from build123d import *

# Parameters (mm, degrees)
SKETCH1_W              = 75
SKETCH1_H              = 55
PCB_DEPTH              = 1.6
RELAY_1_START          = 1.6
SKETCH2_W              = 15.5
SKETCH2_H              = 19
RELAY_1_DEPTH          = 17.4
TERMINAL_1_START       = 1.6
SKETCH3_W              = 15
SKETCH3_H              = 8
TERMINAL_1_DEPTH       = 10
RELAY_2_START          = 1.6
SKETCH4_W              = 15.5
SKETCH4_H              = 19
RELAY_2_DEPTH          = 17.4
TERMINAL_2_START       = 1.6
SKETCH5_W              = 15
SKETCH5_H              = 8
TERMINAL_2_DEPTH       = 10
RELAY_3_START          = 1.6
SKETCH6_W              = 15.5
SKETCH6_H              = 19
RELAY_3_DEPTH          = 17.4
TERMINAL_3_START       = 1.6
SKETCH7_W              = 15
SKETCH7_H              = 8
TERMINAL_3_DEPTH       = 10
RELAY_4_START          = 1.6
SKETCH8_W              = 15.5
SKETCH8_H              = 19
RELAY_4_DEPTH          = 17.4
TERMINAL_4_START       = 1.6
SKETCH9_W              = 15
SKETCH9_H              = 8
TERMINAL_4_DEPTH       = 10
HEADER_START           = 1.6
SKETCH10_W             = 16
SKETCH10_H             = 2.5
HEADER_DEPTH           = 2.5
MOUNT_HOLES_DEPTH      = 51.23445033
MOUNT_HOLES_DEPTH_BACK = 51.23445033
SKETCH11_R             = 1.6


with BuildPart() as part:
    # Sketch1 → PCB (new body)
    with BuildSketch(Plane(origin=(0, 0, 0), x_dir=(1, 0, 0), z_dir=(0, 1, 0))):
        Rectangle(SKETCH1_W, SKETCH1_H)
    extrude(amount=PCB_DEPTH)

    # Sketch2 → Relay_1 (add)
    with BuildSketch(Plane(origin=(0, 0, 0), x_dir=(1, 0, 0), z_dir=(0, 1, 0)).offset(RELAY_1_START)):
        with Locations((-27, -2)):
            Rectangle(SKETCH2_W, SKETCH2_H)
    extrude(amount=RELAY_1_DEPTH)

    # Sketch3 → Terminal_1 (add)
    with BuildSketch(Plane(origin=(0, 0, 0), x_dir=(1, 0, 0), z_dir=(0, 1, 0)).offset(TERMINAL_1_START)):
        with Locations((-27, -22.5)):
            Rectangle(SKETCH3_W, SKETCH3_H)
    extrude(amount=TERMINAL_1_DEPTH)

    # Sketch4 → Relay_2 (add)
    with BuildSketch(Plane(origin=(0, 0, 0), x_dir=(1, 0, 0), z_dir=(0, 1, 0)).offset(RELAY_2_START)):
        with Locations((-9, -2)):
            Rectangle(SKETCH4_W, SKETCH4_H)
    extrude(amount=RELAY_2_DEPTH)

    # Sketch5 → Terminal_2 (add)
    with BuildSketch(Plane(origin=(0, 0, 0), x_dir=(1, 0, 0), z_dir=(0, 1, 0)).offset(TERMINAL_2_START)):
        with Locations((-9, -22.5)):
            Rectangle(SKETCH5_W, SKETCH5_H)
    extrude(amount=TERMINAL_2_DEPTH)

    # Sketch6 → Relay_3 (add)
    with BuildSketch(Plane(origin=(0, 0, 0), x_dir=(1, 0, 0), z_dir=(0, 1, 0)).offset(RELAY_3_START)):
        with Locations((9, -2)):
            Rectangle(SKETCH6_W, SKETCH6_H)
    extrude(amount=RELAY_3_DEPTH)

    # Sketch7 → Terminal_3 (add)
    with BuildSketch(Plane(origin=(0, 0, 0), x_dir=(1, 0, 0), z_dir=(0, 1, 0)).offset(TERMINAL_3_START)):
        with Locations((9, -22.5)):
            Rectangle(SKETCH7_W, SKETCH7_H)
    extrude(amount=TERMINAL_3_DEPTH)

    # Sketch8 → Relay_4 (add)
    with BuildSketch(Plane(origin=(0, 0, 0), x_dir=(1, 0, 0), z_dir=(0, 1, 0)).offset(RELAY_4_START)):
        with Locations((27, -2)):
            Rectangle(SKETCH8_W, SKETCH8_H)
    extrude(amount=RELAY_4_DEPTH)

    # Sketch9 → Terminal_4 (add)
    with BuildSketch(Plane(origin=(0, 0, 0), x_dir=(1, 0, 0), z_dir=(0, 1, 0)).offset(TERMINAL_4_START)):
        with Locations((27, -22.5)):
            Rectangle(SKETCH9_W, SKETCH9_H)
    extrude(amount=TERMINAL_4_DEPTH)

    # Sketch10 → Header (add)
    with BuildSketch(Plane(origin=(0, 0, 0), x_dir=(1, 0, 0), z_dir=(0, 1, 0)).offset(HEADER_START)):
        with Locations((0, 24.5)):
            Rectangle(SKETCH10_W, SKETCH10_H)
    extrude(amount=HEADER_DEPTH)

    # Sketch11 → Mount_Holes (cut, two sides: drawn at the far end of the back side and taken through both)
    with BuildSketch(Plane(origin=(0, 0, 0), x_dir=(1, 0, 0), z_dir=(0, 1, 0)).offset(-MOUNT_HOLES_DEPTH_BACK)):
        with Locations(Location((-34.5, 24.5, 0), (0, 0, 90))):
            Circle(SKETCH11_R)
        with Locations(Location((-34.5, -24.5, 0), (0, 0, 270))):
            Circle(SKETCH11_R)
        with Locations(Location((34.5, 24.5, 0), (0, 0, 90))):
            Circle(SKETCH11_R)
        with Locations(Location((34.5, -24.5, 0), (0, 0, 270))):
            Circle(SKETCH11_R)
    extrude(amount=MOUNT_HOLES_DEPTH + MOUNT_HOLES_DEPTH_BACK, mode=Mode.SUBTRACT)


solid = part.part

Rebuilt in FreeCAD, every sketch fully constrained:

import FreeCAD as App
import Part
import Sketcher
from FreeCAD import Vector
Q = App.Units.Quantity

doc = App.newDocument("Part")
params = doc.addObject("Spreadsheet::Sheet", "Params")
for row, (alias, value) in enumerate([
    ("sketch1_width", "75 mm"),
    ("sketch1_height", "55 mm"),
    ("pad1_length", "1.6 mm"),
    ("sketch2_height", "19 mm"),
    ("sketch2_width", "15.5 mm"),
    ("pad2_length", "17.4 mm"),
    ("sketch3_width", "15 mm"),
    ("sketch3_height", "8 mm"),
    ("pad3_length", "10 mm"),
    ("sketch4_height", "19 mm"),
    ("sketch4_width", "15.5 mm"),
    ("pad4_length", "17.4 mm"),
    ("sketch5_width", "15 mm"),
    ("sketch5_height", "8 mm"),
    ("pad5_length", "10 mm"),
    ("sketch6_height", "19 mm"),
    ("sketch6_width", "15.5 mm"),
    ("pad6_length", "17.4 mm"),
    ("sketch7_width", "15 mm"),
    ("sketch7_height", "8 mm"),
    ("pad7_length", "10 mm"),
    ("sketch8_height", "19 mm"),
    ("sketch8_width", "15.5 mm"),
    ("pad8_length", "17.4 mm"),
    ("sketch9_width", "15 mm"),
    ("sketch9_height", "8 mm"),
    ("pad9_length", "10 mm"),
    ("sketch10_width", "16 mm"),
    ("sketch10_height", "2.5 mm"),
    ("pad10_length", "2.5 mm"),
    ("sketch11_diameter", "3.2 mm"),
], start=1):
    params.set(f"A{row}", alias)
    params.set(f"B{row}", "=" + value)
    params.setAlias(f"B{row}", alias)

body = doc.addObject("PartDesign::Body", "Body")

# Sketch on XZ plane
sketch1 = body.newObject("Sketcher::SketchObject", "Sketch")
sketch1.AttachmentSupport = (doc.getObject("XZ_Plane"), [""])
sketch1.MapMode = "FlatFace"
sketch1.addGeometry([
    Part.LineSegment(Vector(-38, -28, 0), Vector(-38, 28, 0)),
    Part.LineSegment(Vector(-38, 28, 0), Vector(38, 28, 0)),
    Part.LineSegment(Vector(38, 28, 0), Vector(38, -28, 0)),
    Part.LineSegment(Vector(38, -28, 0), Vector(-38, -28, 0)),
], False)
sketch1.addConstraint([
    Sketcher.Constraint("Coincident", 0, 2, 1, 1),
    Sketcher.Constraint("Coincident", 1, 2, 2, 1),
    Sketcher.Constraint("Coincident", 2, 2, 3, 1),
    Sketcher.Constraint("Coincident", 3, 2, 0, 1),
    Sketcher.Constraint("Vertical", 0),
    Sketcher.Constraint("Horizontal", 1),
    Sketcher.Constraint("Vertical", 2),
    Sketcher.Constraint("Horizontal", 3),
    Sketcher.Constraint("Symmetric", 0, 2, 2, 2, -1, 1),
    Sketcher.Constraint("DistanceX", 1, 1, 1, 2, Q("75 mm")),
    Sketcher.Constraint("DistanceY", 0, 1, 0, 2, Q("55 mm")),
])
sketch1.setExpression("Constraints[9]", "Params.sketch1_width")
sketch1.setExpression("Constraints[10]", "Params.sketch1_height")
pad1 = body.newObject("PartDesign::Pad", "Pad")
pad1.Profile = sketch1
pad1.setExpression("Length", "Params.pad1_length")
pad1.Reversed = True

# Sketch on XZ plane
sketch2 = body.newObject("Sketcher::SketchObject", "Sketch001")
sketch2.AttachmentSupport = (doc.getObject("XZ_Plane"), [""])
sketch2.MapMode = "FlatFace"
sketch2.AttachmentOffset = App.Placement(Vector(0, 0, -1.6), App.Rotation())
sketch2.addGeometry([
    Part.LineSegment(Vector(-35, -8, 0), Vector(-35, 12, 0)),
    Part.LineSegment(Vector(-35, 12, 0), Vector(-19, 12, 0)),
    Part.LineSegment(Vector(-19, 12, 0), Vector(-19, -8, 0)),
    Part.LineSegment(Vector(-19, -8, 0), Vector(-35, -8, 0)),
], False)
sketch2.addConstraint([
    Sketcher.Constraint("Coincident", 0, 2, 1, 1),
    Sketcher.Constraint("Coincident", 1, 2, 2, 1),
    Sketcher.Constraint("Coincident", 2, 2, 3, 1),
    Sketcher.Constraint("Coincident", 3, 2, 0, 1),
    Sketcher.Constraint("Vertical", 0),
    Sketcher.Constraint("Horizontal", 1),
    Sketcher.Constraint("Vertical", 2),
    Sketcher.Constraint("Horizontal", 3),
    Sketcher.Constraint("DistanceY", 0, 1, 0, 2, Q("19 mm")),
    Sketcher.Constraint("DistanceX", 1, 1, 1, 2, Q("15.5 mm")),
    Sketcher.Constraint("DistanceY", -1, 1, 0, 2, Q("11.5 mm")),
    Sketcher.Constraint("DistanceX", 0, 2, -1, 1, Q("34.75 mm")),
])
sketch2.setExpression("Constraints[8]", "Params.sketch2_height")
sketch2.setExpression("Constraints[9]", "Params.sketch2_width")
pad2 = body.newObject("PartDesign::Pad", "Pad001")
pad2.Profile = sketch2
pad2.setExpression("Length", "Params.pad2_length")
pad2.Reversed = True

# Sketch on XZ plane
sketch3 = body.newObject("Sketcher::SketchObject", "Sketch002")
sketch3.AttachmentSupport = (doc.getObject("XZ_Plane"), [""])
sketch3.MapMode = "FlatFace"
sketch3.AttachmentOffset = App.Placement(Vector(0, 0, -1.6), App.Rotation())
sketch3.addGeometry([
    Part.LineSegment(Vector(-34, 18, 0), Vector(-34, 26, 0)),
    Part.LineSegment(Vector(-34, 26, 0), Vector(-20, 26, 0)),
    Part.LineSegment(Vector(-20, 26, 0), Vector(-20, 18, 0)),
    Part.LineSegment(Vector(-20, 18, 0), Vector(-34, 18, 0)),
], False)
sketch3.addConstraint([
    Sketcher.Constraint("Coincident", 0, 2, 1, 1),
    Sketcher.Constraint("Coincident", 1, 2, 2, 1),
    Sketcher.Constraint("Coincident", 2, 2, 3, 1),
    Sketcher.Constraint("Coincident", 3, 2, 0, 1),
    Sketcher.Constraint("Vertical", 0),
    Sketcher.Constraint("Horizontal", 1),
    Sketcher.Constraint("Vertical", 2),
    Sketcher.Constraint("Horizontal", 3),
    Sketcher.Constraint("DistanceX", 1, 1, 1, 2, Q("15 mm")),
    Sketcher.Constraint("DistanceY", 0, 1, 0, 2, Q("8 mm")),
    Sketcher.Constraint("DistanceX", 0, 2, -1, 1, Q("34.5 mm")),
    Sketcher.Constraint("DistanceY", -1, 1, 0, 2, Q("26.5 mm")),
])
sketch3.setExpression("Constraints[8]", "Params.sketch3_width")
sketch3.setExpression("Constraints[9]", "Params.sketch3_height")
pad3 = body.newObject("PartDesign::Pad", "Pad002")
pad3.Profile = sketch3
pad3.setExpression("Length", "Params.pad3_length")
pad3.Reversed = True

# Sketch on XZ plane
sketch4 = body.newObject("Sketcher::SketchObject", "Sketch003")
sketch4.AttachmentSupport = (doc.getObject("XZ_Plane"), [""])
sketch4.MapMode = "FlatFace"
sketch4.AttachmentOffset = App.Placement(Vector(0, 0, -1.6), App.Rotation())
sketch4.addGeometry([
    Part.LineSegment(Vector(-17, -8, 0), Vector(-17, 12, 0)),
    Part.LineSegment(Vector(-17, 12, 0), Vector(-1, 12, 0)),
    Part.LineSegment(Vector(-1, 12, 0), Vector(-1, -8, 0)),
    Part.LineSegment(Vector(-1, -8, 0), Vector(-17, -8, 0)),
], False)
sketch4.addConstraint([
    Sketcher.Constraint("Coincident", 0, 2, 1, 1),
    Sketcher.Constraint("Coincident", 1, 2, 2, 1),
    Sketcher.Constraint("Coincident", 2, 2, 3, 1),
    Sketcher.Constraint("Coincident", 3, 2, 0, 1),
    Sketcher.Constraint("Vertical", 0),
    Sketcher.Constraint("Horizontal", 1),
    Sketcher.Constraint("Vertical", 2),
    Sketcher.Constraint("Horizontal", 3),
    Sketcher.Constraint("DistanceY", 0, 1, 0, 2, Q("19 mm")),
    Sketcher.Constraint("DistanceX", 1, 1, 1, 2, Q("15.5 mm")),
    Sketcher.Constraint("DistanceY", -1, 1, 0, 2, Q("11.5 mm")),
    Sketcher.Constraint("DistanceX", 0, 2, -1, 1, Q("16.75 mm")),
])
sketch4.setExpression("Constraints[8]", "Params.sketch4_height")
sketch4.setExpression("Constraints[9]", "Params.sketch4_width")
pad4 = body.newObject("PartDesign::Pad", "Pad003")
pad4.Profile = sketch4
pad4.setExpression("Length", "Params.pad4_length")
pad4.Reversed = True

# Sketch on XZ plane
sketch5 = body.newObject("Sketcher::SketchObject", "Sketch004")
sketch5.AttachmentSupport = (doc.getObject("XZ_Plane"), [""])
sketch5.MapMode = "FlatFace"
sketch5.AttachmentOffset = App.Placement(Vector(0, 0, -1.6), App.Rotation())
sketch5.addGeometry([
    Part.LineSegment(Vector(-16, 18, 0), Vector(-16, 26, 0)),
    Part.LineSegment(Vector(-16, 26, 0), Vector(-2, 26, 0)),
    Part.LineSegment(Vector(-2, 26, 0), Vector(-2, 18, 0)),
    Part.LineSegment(Vector(-2, 18, 0), Vector(-16, 18, 0)),
], False)
sketch5.addConstraint([
    Sketcher.Constraint("Coincident", 0, 2, 1, 1),
    Sketcher.Constraint("Coincident", 1, 2, 2, 1),
    Sketcher.Constraint("Coincident", 2, 2, 3, 1),
    Sketcher.Constraint("Coincident", 3, 2, 0, 1),
    Sketcher.Constraint("Vertical", 0),
    Sketcher.Constraint("Horizontal", 1),
    Sketcher.Constraint("Vertical", 2),
    Sketcher.Constraint("Horizontal", 3),
    Sketcher.Constraint("DistanceX", 1, 1, 1, 2, Q("15 mm")),
    Sketcher.Constraint("DistanceY", 0, 1, 0, 2, Q("8 mm")),
    Sketcher.Constraint("DistanceX", 0, 2, -1, 1, Q("16.5 mm")),
    Sketcher.Constraint("DistanceY", -1, 1, 0, 2, Q("26.5 mm")),
])
sketch5.setExpression("Constraints[8]", "Params.sketch5_width")
sketch5.setExpression("Constraints[9]", "Params.sketch5_height")
pad5 = body.newObject("PartDesign::Pad", "Pad004")
pad5.Profile = sketch5
pad5.setExpression("Length", "Params.pad5_length")
pad5.Reversed = True

# Sketch on XZ plane
sketch6 = body.newObject("Sketcher::SketchObject", "Sketch005")
sketch6.AttachmentSupport = (doc.getObject("XZ_Plane"), [""])
sketch6.MapMode = "FlatFace"
sketch6.AttachmentOffset = App.Placement(Vector(0, 0, -1.6), App.Rotation())
sketch6.addGeometry([
    Part.LineSegment(Vector(1, -8, 0), Vector(1, 12, 0)),
    Part.LineSegment(Vector(1, 12, 0), Vector(17, 12, 0)),
    Part.LineSegment(Vector(17, 12, 0), Vector(17, -8, 0)),
    Part.LineSegment(Vector(17, -8, 0), Vector(1, -8, 0)),
], False)
sketch6.addConstraint([
    Sketcher.Constraint("Coincident", 0, 2, 1, 1),
    Sketcher.Constraint("Coincident", 1, 2, 2, 1),
    Sketcher.Constraint("Coincident", 2, 2, 3, 1),
    Sketcher.Constraint("Coincident", 3, 2, 0, 1),
    Sketcher.Constraint("Vertical", 0),
    Sketcher.Constraint("Horizontal", 1),
    Sketcher.Constraint("Vertical", 2),
    Sketcher.Constraint("Horizontal", 3),
    Sketcher.Constraint("DistanceY", 0, 1, 0, 2, Q("19 mm")),
    Sketcher.Constraint("DistanceX", 1, 1, 1, 2, Q("15.5 mm")),
    Sketcher.Constraint("DistanceY", -1, 1, 0, 2, Q("11.5 mm")),
    Sketcher.Constraint("DistanceX", -1, 1, 0, 2, Q("1.25 mm")),
])
sketch6.setExpression("Constraints[8]", "Params.sketch6_height")
sketch6.setExpression("Constraints[9]", "Params.sketch6_width")
pad6 = body.newObject("PartDesign::Pad", "Pad005")
pad6.Profile = sketch6
pad6.setExpression("Length", "Params.pad6_length")
pad6.Reversed = True

# Sketch on XZ plane
sketch7 = body.newObject("Sketcher::SketchObject", "Sketch006")
sketch7.AttachmentSupport = (doc.getObject("XZ_Plane"), [""])
sketch7.MapMode = "FlatFace"
sketch7.AttachmentOffset = App.Placement(Vector(0, 0, -1.6), App.Rotation())
sketch7.addGeometry([
    Part.LineSegment(Vector(2, 18, 0), Vector(2, 26, 0)),
    Part.LineSegment(Vector(2, 26, 0), Vector(16, 26, 0)),
    Part.LineSegment(Vector(16, 26, 0), Vector(16, 18, 0)),
    Part.LineSegment(Vector(16, 18, 0), Vector(2, 18, 0)),
], False)
sketch7.addConstraint([
    Sketcher.Constraint("Coincident", 0, 2, 1, 1),
    Sketcher.Constraint("Coincident", 1, 2, 2, 1),
    Sketcher.Constraint("Coincident", 2, 2, 3, 1),
    Sketcher.Constraint("Coincident", 3, 2, 0, 1),
    Sketcher.Constraint("Vertical", 0),
    Sketcher.Constraint("Horizontal", 1),
    Sketcher.Constraint("Vertical", 2),
    Sketcher.Constraint("Horizontal", 3),
    Sketcher.Constraint("DistanceX", 1, 1, 1, 2, Q("15 mm")),
    Sketcher.Constraint("DistanceY", 0, 1, 0, 2, Q("8 mm")),
    Sketcher.Constraint("DistanceX", -1, 1, 0, 2, Q("1.5 mm")),
    Sketcher.Constraint("DistanceY", -1, 1, 0, 2, Q("26.5 mm")),
])
sketch7.setExpression("Constraints[8]", "Params.sketch7_width")
sketch7.setExpression("Constraints[9]", "Params.sketch7_height")
pad7 = body.newObject("PartDesign::Pad", "Pad006")
pad7.Profile = sketch7
pad7.setExpression("Length", "Params.pad7_length")
pad7.Reversed = True

# Sketch on XZ plane
sketch8 = body.newObject("Sketcher::SketchObject", "Sketch007")
sketch8.AttachmentSupport = (doc.getObject("XZ_Plane"), [""])
sketch8.MapMode = "FlatFace"
sketch8.AttachmentOffset = App.Placement(Vector(0, 0, -1.6), App.Rotation())
sketch8.addGeometry([
    Part.LineSegment(Vector(19, -8, 0), Vector(19, 12, 0)),
    Part.LineSegment(Vector(19, 12, 0), Vector(35, 12, 0)),
    Part.LineSegment(Vector(35, 12, 0), Vector(35, -8, 0)),
    Part.LineSegment(Vector(35, -8, 0), Vector(19, -8, 0)),
], False)
sketch8.addConstraint([
    Sketcher.Constraint("Coincident", 0, 2, 1, 1),
    Sketcher.Constraint("Coincident", 1, 2, 2, 1),
    Sketcher.Constraint("Coincident", 2, 2, 3, 1),
    Sketcher.Constraint("Coincident", 3, 2, 0, 1),
    Sketcher.Constraint("Vertical", 0),
    Sketcher.Constraint("Horizontal", 1),
    Sketcher.Constraint("Vertical", 2),
    Sketcher.Constraint("Horizontal", 3),
    Sketcher.Constraint("DistanceY", 0, 1, 0, 2, Q("19 mm")),
    Sketcher.Constraint("DistanceX", 1, 1, 1, 2, Q("15.5 mm")),
    Sketcher.Constraint("DistanceY", -1, 1, 0, 2, Q("11.5 mm")),
    Sketcher.Constraint("DistanceX", -1, 1, 0, 2, Q("19.25 mm")),
])
sketch8.setExpression("Constraints[8]", "Params.sketch8_height")
sketch8.setExpression("Constraints[9]", "Params.sketch8_width")
pad8 = body.newObject("PartDesign::Pad", "Pad007")
pad8.Profile = sketch8
pad8.setExpression("Length", "Params.pad8_length")
pad8.Reversed = True

# Sketch on XZ plane
sketch9 = body.newObject("Sketcher::SketchObject", "Sketch008")
sketch9.AttachmentSupport = (doc.getObject("XZ_Plane"), [""])
sketch9.MapMode = "FlatFace"
sketch9.AttachmentOffset = App.Placement(Vector(0, 0, -1.6), App.Rotation())
sketch9.addGeometry([
    Part.LineSegment(Vector(20, 18, 0), Vector(20, 26, 0)),
    Part.LineSegment(Vector(20, 26, 0), Vector(34, 26, 0)),
    Part.LineSegment(Vector(34, 26, 0), Vector(34, 18, 0)),
    Part.LineSegment(Vector(34, 18, 0), Vector(20, 18, 0)),
], False)
sketch9.addConstraint([
    Sketcher.Constraint("Coincident", 0, 2, 1, 1),
    Sketcher.Constraint("Coincident", 1, 2, 2, 1),
    Sketcher.Constraint("Coincident", 2, 2, 3, 1),
    Sketcher.Constraint("Coincident", 3, 2, 0, 1),
    Sketcher.Constraint("Vertical", 0),
    Sketcher.Constraint("Horizontal", 1),
    Sketcher.Constraint("Vertical", 2),
    Sketcher.Constraint("Horizontal", 3),
    Sketcher.Constraint("DistanceX", 1, 1, 1, 2, Q("15 mm")),
    Sketcher.Constraint("DistanceY", 0, 1, 0, 2, Q("8 mm")),
    Sketcher.Constraint("DistanceX", -1, 1, 0, 2, Q("19.5 mm")),
    Sketcher.Constraint("DistanceY", -1, 1, 0, 2, Q("26.5 mm")),
])
sketch9.setExpression("Constraints[8]", "Params.sketch9_width")
sketch9.setExpression("Constraints[9]", "Params.sketch9_height")
pad9 = body.newObject("PartDesign::Pad", "Pad008")
pad9.Profile = sketch9
pad9.setExpression("Length", "Params.pad9_length")
pad9.Reversed = True

# Sketch on XZ plane
sketch10 = body.newObject("Sketcher::SketchObject", "Sketch009")
sketch10.AttachmentSupport = (doc.getObject("XZ_Plane"), [""])
sketch10.MapMode = "FlatFace"
sketch10.AttachmentOffset = App.Placement(Vector(0, 0, -1.6), App.Rotation())
sketch10.addGeometry([
    Part.LineSegment(Vector(-8, -25.8, 0), Vector(-8, -23.2, 0)),
    Part.LineSegment(Vector(-8, -23.2, 0), Vector(8, -23.2, 0)),
    Part.LineSegment(Vector(8, -23.2, 0), Vector(8, -25.8, 0)),
    Part.LineSegment(Vector(8, -25.8, 0), Vector(-8, -25.8, 0)),
], False)
sketch10.addConstraint([
    Sketcher.Constraint("Coincident", 0, 2, 1, 1),
    Sketcher.Constraint("Coincident", 1, 2, 2, 1),
    Sketcher.Constraint("Coincident", 2, 2, 3, 1),
    Sketcher.Constraint("Coincident", 3, 2, 0, 1),
    Sketcher.Constraint("Vertical", 0),
    Sketcher.Constraint("Horizontal", 1),
    Sketcher.Constraint("Vertical", 2),
    Sketcher.Constraint("Horizontal", 3),
    Sketcher.Constraint("DistanceX", 1, 1, 1, 2, Q("16 mm")),
    Sketcher.Constraint("DistanceY", 0, 1, 0, 2, Q("2.5 mm")),
    Sketcher.Constraint("DistanceX", 0, 2, -1, 1, Q("8 mm")),
    Sketcher.Constraint("DistanceY", 0, 2, -1, 1, Q("23.25 mm")),
])
sketch10.setExpression("Constraints[8]", "Params.sketch10_width")
sketch10.setExpression("Constraints[9]", "Params.sketch10_height")
pad10 = body.newObject("PartDesign::Pad", "Pad009")
pad10.Profile = sketch10
pad10.setExpression("Length", "Params.pad10_length")
pad10.Reversed = True

# Sketch on XZ plane
sketch11 = body.newObject("Sketcher::SketchObject", "Sketch010")
sketch11.AttachmentSupport = (doc.getObject("XZ_Plane"), [""])
sketch11.MapMode = "FlatFace"
sketch11.addGeometry([
    Part.Circle(Vector(-34.5, -24.5, 0), Vector(0, 0, 1), 1.6),
    Part.Circle(Vector(-34.5, 24.5, 0), Vector(0, 0, 1), 1.6),
    Part.Circle(Vector(34.5, -24.5, 0), Vector(0, 0, 1), 1.6),
    Part.Circle(Vector(34.5, 24.5, 0), Vector(0, 0, 1), 1.6),
], False)
sketch11.addConstraint([
    Sketcher.Constraint("Equal", 0, 1),
    Sketcher.Constraint("Equal", 1, 2),
    Sketcher.Constraint("Equal", 2, 3),
    Sketcher.Constraint("Symmetric", 1, 3, 2, 3, -1, 1),
    Sketcher.Constraint("Symmetric", 0, 3, 3, 3, -1, 1),
    Sketcher.Constraint("Symmetric", 0, 3, 2, 3, -2),
    Sketcher.Constraint("Diameter", 0, Q("3.2 mm")),
    Sketcher.Constraint("DistanceY", 0, 3, 1, 3, Q("49 mm")),
    Sketcher.Constraint("DistanceX", 0, 3, 2, 3, Q("69 mm")),
])
sketch11.setExpression("Constraints[6]", "Params.sketch11_diameter")
pocket1 = body.newObject("PartDesign::Pocket", "Pocket")
pocket1.Profile = sketch11
pocket1.Type = "ThroughAll"
pocket1.Midplane = True

doc.recompute()
